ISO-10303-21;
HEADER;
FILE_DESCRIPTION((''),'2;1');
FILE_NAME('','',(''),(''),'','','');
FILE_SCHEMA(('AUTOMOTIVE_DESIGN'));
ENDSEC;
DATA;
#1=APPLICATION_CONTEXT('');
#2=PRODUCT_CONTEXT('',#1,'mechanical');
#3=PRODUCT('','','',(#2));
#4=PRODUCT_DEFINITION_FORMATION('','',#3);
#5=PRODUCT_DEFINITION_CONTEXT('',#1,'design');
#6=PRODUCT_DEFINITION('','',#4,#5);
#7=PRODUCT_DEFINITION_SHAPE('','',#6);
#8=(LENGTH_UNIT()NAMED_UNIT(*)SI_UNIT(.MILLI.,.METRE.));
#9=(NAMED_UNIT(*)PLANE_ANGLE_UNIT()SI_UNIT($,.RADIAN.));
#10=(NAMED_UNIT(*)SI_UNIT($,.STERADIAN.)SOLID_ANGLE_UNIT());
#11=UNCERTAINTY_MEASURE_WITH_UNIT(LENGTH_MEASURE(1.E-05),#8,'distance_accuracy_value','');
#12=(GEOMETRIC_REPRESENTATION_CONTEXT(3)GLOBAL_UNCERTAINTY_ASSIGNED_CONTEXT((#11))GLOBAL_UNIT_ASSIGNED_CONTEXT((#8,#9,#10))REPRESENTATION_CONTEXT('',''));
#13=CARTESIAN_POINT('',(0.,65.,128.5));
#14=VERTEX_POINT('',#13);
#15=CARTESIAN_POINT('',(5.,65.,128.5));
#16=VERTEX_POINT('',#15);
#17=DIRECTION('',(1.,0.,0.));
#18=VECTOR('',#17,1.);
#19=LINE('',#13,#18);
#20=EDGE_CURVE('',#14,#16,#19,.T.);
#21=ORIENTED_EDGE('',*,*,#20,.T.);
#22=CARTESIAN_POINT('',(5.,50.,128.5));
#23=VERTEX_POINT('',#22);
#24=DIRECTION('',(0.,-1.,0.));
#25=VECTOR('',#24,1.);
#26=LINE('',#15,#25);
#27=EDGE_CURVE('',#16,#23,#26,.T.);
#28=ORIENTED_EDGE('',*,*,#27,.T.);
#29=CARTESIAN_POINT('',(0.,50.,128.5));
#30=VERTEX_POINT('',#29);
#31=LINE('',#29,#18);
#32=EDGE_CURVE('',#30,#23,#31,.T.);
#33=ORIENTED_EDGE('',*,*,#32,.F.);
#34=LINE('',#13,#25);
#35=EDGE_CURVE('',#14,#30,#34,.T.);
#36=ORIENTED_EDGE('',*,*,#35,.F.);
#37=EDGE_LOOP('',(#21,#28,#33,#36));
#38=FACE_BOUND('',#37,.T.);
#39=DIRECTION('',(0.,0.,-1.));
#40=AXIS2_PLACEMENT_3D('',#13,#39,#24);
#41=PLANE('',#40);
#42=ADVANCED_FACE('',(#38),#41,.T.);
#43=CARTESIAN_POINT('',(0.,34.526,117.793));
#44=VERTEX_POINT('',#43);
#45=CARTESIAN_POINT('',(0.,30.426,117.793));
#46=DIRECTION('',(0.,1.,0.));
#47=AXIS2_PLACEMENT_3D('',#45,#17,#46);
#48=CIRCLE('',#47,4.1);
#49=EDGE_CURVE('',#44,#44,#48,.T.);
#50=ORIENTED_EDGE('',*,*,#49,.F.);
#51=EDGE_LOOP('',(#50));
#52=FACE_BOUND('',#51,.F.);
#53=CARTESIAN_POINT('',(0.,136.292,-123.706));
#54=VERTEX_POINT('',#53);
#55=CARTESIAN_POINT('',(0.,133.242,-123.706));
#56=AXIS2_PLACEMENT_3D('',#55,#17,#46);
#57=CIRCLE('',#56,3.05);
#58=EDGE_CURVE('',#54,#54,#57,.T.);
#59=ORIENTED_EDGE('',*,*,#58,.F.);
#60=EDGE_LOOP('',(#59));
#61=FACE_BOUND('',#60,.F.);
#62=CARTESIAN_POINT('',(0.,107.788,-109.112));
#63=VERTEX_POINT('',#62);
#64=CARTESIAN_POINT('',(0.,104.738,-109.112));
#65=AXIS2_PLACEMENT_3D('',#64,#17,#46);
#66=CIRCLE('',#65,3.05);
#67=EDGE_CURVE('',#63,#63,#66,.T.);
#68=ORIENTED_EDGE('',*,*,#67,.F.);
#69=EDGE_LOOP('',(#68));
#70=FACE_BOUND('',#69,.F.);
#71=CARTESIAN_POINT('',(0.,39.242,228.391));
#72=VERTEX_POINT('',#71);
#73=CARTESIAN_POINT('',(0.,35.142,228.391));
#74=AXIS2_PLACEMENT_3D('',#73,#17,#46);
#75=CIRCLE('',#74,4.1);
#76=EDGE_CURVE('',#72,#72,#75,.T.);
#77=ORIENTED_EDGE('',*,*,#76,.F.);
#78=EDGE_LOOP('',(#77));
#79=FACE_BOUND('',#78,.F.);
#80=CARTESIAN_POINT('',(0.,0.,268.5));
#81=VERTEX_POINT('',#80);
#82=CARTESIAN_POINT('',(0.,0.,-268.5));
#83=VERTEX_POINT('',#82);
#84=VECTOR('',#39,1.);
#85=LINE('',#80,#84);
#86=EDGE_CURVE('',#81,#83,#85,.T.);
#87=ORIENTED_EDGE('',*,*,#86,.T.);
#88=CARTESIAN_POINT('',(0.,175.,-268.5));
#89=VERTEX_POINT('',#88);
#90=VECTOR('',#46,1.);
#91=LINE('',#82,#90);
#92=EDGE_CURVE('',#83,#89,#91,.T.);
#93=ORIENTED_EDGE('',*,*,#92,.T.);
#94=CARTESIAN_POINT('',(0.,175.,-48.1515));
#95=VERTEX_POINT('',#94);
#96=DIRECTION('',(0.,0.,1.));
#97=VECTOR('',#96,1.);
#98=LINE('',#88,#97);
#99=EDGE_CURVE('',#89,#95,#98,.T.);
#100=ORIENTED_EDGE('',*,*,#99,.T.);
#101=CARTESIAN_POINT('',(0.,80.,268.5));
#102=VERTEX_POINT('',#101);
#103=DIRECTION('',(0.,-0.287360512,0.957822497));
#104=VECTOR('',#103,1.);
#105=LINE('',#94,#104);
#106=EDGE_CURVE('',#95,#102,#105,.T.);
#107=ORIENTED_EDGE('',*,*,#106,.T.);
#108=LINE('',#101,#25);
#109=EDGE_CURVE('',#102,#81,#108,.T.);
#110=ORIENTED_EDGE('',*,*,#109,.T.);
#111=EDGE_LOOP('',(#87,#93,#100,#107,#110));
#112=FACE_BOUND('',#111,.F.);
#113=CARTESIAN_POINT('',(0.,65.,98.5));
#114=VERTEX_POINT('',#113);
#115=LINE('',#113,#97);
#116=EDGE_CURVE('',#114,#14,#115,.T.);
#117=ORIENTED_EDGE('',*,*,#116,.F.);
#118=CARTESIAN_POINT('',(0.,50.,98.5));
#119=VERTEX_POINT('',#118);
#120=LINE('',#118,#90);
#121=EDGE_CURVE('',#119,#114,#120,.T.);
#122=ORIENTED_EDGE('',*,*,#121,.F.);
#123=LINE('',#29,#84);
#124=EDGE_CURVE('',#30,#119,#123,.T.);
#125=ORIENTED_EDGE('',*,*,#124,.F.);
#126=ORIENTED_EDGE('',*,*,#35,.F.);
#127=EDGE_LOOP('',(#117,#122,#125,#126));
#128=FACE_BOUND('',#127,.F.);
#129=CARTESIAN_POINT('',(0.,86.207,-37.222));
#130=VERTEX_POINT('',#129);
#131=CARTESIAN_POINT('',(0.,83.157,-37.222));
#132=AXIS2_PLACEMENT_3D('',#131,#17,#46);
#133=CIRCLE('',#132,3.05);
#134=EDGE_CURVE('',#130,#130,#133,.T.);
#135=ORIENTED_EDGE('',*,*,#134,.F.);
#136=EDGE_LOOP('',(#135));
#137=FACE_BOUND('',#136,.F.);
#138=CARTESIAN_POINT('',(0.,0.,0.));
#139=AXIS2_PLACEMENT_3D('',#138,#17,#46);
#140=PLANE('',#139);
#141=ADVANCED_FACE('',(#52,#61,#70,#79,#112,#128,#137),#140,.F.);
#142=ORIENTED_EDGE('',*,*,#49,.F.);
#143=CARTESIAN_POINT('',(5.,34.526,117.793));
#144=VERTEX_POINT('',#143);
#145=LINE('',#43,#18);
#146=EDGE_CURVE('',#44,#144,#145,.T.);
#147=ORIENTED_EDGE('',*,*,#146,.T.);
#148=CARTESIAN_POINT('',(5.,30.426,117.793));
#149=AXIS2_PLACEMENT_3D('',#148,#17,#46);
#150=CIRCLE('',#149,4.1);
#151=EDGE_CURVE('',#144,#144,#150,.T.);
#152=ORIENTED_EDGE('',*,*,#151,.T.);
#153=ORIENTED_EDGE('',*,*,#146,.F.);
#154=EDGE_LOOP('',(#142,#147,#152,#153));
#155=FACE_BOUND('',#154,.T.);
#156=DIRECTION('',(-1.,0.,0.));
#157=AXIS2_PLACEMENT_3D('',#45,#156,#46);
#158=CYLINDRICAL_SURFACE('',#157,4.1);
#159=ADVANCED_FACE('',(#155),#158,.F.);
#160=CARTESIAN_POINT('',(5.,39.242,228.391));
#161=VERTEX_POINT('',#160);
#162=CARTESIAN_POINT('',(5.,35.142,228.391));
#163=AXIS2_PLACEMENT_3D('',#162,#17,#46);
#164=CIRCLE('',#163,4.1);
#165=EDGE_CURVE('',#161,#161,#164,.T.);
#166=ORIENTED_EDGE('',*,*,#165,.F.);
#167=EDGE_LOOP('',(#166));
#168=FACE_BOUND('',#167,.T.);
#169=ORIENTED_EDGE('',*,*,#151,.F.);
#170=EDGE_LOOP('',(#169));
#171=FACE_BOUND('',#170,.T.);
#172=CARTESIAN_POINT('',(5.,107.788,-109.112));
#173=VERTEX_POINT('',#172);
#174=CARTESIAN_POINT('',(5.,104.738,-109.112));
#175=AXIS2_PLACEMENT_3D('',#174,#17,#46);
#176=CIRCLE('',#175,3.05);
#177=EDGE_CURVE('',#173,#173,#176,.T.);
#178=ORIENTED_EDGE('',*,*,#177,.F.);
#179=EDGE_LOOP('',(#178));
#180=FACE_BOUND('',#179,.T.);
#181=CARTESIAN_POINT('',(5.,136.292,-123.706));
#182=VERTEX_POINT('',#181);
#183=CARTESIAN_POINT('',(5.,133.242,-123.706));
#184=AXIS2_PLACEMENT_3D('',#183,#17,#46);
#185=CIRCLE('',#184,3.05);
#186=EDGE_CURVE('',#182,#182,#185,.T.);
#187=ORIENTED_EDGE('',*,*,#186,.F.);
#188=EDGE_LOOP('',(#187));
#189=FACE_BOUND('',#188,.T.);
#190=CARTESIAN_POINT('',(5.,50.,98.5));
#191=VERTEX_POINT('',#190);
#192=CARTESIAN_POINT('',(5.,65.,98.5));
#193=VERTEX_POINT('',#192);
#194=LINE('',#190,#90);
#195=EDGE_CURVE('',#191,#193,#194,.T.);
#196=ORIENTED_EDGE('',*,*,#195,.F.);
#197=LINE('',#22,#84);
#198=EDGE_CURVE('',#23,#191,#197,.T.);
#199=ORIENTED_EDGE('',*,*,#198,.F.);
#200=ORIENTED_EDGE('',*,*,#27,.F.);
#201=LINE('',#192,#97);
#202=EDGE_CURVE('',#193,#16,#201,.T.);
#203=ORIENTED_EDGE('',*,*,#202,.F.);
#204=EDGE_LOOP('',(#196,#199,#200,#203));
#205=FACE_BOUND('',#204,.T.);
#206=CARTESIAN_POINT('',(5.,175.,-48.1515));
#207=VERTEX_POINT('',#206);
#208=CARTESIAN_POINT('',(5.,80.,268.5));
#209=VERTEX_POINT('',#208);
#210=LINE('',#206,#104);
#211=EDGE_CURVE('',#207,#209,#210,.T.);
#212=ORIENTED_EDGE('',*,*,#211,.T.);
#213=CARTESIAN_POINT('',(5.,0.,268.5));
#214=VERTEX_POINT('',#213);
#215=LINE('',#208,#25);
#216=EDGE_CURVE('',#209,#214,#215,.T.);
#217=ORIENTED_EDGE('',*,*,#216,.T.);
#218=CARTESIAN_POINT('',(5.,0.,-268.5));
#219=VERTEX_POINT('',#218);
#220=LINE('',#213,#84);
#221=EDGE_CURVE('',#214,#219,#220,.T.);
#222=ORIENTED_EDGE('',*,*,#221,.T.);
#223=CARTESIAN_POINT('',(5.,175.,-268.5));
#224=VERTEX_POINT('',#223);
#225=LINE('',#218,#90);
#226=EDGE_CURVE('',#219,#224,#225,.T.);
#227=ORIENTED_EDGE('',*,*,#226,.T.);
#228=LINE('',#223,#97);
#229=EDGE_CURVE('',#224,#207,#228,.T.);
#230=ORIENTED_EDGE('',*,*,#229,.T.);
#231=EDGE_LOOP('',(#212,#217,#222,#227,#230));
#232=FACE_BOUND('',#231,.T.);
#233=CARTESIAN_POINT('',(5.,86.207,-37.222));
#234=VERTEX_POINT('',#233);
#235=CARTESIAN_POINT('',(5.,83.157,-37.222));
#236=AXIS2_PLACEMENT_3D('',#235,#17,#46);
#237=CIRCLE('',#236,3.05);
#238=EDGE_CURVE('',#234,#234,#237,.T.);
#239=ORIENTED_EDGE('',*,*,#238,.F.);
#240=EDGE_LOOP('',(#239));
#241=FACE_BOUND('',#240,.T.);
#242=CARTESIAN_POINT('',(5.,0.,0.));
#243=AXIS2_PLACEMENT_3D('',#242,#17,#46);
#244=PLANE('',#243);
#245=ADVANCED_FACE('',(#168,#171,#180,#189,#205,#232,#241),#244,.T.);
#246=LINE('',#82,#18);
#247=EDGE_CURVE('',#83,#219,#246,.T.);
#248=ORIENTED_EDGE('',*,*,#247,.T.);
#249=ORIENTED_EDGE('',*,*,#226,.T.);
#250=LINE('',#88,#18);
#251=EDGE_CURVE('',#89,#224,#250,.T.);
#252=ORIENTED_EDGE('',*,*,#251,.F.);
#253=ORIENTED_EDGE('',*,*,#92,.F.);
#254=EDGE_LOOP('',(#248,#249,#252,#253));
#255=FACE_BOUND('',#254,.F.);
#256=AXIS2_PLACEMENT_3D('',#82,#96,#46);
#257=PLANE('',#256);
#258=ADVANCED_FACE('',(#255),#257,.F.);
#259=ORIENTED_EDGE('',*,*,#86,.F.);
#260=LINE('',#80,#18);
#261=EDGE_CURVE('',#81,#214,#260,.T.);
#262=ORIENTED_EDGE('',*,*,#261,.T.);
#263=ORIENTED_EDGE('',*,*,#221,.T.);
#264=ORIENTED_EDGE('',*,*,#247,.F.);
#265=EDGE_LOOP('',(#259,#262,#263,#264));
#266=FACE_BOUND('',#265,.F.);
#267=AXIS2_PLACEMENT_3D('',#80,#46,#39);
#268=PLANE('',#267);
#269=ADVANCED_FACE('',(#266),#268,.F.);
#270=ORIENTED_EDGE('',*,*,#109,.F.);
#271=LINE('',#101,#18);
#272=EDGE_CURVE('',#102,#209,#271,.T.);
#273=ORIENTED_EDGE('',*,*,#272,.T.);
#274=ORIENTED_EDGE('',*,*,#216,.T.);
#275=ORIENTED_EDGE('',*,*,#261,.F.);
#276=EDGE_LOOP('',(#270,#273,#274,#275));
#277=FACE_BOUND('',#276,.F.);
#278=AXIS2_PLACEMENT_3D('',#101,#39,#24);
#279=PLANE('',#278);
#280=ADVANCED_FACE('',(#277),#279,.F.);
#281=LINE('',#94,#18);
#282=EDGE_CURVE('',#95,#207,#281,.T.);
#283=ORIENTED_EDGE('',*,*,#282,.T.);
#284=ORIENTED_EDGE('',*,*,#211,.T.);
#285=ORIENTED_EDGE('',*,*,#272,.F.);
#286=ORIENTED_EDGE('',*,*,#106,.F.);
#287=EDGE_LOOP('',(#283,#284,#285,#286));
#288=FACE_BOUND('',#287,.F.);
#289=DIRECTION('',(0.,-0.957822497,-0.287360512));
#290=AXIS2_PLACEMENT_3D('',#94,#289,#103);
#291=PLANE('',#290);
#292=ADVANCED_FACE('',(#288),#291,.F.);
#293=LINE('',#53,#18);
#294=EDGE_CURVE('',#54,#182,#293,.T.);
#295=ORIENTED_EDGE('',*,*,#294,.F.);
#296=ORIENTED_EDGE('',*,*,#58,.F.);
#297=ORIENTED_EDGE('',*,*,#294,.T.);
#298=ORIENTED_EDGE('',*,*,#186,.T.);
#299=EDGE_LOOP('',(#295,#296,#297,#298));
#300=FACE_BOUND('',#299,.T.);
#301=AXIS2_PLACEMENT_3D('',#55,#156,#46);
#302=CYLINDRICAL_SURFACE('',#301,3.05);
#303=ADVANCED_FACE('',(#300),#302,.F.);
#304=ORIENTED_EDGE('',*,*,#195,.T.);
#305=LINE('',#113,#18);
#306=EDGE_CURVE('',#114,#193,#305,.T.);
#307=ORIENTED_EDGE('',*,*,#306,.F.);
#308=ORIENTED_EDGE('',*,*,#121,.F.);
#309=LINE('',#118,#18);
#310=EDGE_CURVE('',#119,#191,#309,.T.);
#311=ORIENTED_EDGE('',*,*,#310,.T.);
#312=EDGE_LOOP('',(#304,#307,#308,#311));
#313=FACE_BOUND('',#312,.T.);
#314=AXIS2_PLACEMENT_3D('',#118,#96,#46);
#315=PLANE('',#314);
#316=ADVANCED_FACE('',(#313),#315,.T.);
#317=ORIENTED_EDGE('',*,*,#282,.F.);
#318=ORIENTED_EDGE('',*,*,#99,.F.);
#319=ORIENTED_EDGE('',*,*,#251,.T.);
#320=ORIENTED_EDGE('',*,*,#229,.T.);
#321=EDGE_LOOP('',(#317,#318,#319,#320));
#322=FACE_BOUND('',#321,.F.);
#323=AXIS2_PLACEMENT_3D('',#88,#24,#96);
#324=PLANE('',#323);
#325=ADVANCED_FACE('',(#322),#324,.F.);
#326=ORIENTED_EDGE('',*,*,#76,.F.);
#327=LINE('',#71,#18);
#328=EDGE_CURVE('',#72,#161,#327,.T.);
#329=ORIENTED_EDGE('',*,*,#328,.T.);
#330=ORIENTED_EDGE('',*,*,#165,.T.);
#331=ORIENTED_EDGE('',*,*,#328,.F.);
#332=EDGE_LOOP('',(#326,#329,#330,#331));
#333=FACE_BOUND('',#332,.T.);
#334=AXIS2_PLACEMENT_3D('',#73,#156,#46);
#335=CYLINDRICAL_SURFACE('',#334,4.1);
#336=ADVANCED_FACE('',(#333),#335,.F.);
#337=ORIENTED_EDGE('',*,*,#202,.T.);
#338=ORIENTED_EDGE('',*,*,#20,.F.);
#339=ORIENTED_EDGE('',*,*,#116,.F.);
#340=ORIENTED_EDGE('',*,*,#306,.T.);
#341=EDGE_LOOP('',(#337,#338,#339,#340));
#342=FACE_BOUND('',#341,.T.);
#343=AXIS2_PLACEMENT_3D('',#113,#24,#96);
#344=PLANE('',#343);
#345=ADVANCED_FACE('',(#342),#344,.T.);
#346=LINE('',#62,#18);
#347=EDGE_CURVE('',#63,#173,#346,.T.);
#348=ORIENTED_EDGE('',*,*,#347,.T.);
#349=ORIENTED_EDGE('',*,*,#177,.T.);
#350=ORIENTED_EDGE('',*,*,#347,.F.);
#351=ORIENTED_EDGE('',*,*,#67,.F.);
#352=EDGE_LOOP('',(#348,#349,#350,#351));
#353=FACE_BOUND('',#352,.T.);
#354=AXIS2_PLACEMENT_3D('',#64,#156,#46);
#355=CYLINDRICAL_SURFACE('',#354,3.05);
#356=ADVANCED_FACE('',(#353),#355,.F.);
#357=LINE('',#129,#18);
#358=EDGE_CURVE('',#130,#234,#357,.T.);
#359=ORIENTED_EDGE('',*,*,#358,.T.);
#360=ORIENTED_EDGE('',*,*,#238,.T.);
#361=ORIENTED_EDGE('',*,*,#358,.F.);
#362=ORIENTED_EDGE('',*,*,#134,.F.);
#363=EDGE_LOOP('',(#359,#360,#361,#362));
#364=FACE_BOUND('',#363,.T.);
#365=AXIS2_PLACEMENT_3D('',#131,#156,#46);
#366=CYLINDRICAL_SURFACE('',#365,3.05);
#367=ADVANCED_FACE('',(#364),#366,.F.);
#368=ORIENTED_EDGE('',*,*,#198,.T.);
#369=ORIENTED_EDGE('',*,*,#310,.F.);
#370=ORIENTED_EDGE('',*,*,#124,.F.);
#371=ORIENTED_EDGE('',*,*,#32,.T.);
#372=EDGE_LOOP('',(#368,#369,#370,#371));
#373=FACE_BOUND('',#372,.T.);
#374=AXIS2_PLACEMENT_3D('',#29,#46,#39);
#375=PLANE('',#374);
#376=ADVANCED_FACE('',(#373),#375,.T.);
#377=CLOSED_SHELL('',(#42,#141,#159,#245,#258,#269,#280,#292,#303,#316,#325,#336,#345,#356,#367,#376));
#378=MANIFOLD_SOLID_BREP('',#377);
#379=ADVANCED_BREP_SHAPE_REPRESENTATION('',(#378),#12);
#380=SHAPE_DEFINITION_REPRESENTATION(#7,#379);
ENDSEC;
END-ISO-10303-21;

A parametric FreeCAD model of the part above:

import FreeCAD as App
import Part
import Sketcher

V = App.Vector
Q = App.Units.Quantity


def add_polygon(sketch, points):
    """Adds a closed chain of lines whose ends are joined by coincident constraints."""
    first, n = sketch.GeometryCount, len(points)
    for a, b in zip(points, points[1:] + points[:1]):
        sketch.addGeometry(Part.LineSegment(App.Vector(*a, 0), App.Vector(*b, 0)), False)
    for i in range(n):
        sketch.addConstraint(Sketcher.Constraint("Coincident", first + i, 2, first + (i + 1) % n, 1))

doc = App.newDocument("Part")
body = doc.addObject("PartDesign::Body", "Body")

# Sketch on YZ plane
sketch1 = doc.addObject("Sketcher::SketchObject", "Sketch")
body.addObject(sketch1)
sketch1.AttachmentSupport = (doc.YZ_Plane, [""])
sketch1.MapMode = "FlatFace"
add_polygon(sketch1, [(80, 268.5), (0, 268.5), (0, -268.5), (175, -268.5), (175, -48.2)])  # lines 0-4
sketch1.addGeometry(Part.Circle(V(83.2, -37.2, 0), V(0, 0, 1), 3), False)  # 5
sketch1.addGeometry(Part.Circle(V(104.7, -109.1, 0), V(0, 0, 1), 3), False)  # 6
sketch1.addGeometry(Part.Circle(V(133.2, -123.7, 0), V(0, 0, 1), 3), False)  # 7
sketch1.addGeometry(Part.Circle(V(30.4, 117.8, 0), V(0, 0, 1), 4.1), False)  # 8
add_polygon(sketch1, [(50, 128.5), (65, 128.5), (65, 98.5), (50, 98.5)])  # lines 9-12
sketch1.addGeometry(Part.Circle(V(35.1, 228.4, 0), V(0, 0, 1), 4.1), False)  # 13
sketch1.addConstraint(Sketcher.Constraint("Horizontal", 0))
sketch1.addConstraint(Sketcher.Constraint("Vertical", 1))
sketch1.addConstraint(Sketcher.Constraint("Horizontal", 2))
sketch1.addConstraint(Sketcher.Constraint("Vertical", 3))
sketch1.addConstraint(Sketcher.Constraint("Horizontal", 9))
sketch1.addConstraint(Sketcher.Constraint("Vertical", 10))
sketch1.addConstraint(Sketcher.Constraint("Horizontal", 11))
sketch1.addConstraint(Sketcher.Constraint("Vertical", 12))
sketch1.addConstraint(Sketcher.Constraint("Equal", 5, 6))
sketch1.addConstraint(Sketcher.Constraint("Equal", 6, 7))
sketch1.addConstraint(Sketcher.Constraint("Equal", 8, 13))
sketch1.addConstraint(Sketcher.Constraint("Symmetric", 0, 2, 1, 2, -1, 1))
sketch1.addConstraint(Sketcher.Constraint("Diameter", 5, 6.1))
sketch1.addConstraint(Sketcher.Constraint("Diameter", 8, 8.2))
sketch1.addConstraint(Sketcher.Constraint("DistanceX", 0, 2, 0, 1, 80.0))
sketch1.addConstraint(Sketcher.Constraint("DistanceX", 2, 1, 2, 2, 175.0))
sketch1.addConstraint(Sketcher.Constraint("DistanceX", 9, 1, 9, 2, 15.0))
sketch1.addConstraint(Sketcher.Constraint("DistanceY", 1, 2, 1, 1, 537.0))
sketch1.addConstraint(Sketcher.Constraint("DistanceY", 10, 2, 10, 1, 30.0))
sketch1.addConstraint(Sketcher.Constraint("DistanceX", -1, 1, 11, 2, 50.0))
sketch1.addConstraint(Sketcher.Constraint("DistanceY", 9, 2, 4, 2, 140.0))
sketch1.addConstraint(Sketcher.Constraint("DistanceX", -1, 1, 5, 3, 83.157))
sketch1.addConstraint(Sketcher.Constraint("DistanceX", -1, 1, 6, 3, 104.738))
sketch1.addConstraint(Sketcher.Constraint("DistanceX", -1, 1, 7, 3, 133.242))
sketch1.addConstraint(Sketcher.Constraint("DistanceX", -1, 1, 8, 3, 30.426))
sketch1.addConstraint(Sketcher.Constraint("DistanceX", -1, 1, 13, 3, 35.142))
sketch1.addConstraint(Sketcher.Constraint("Angle", 4, Q("106.7 deg")))
sketch1.addConstraint(Sketcher.Constraint("DistanceY", 13, 3, 0, 2, 40.109))
sketch1.addConstraint(Sketcher.Constraint("DistanceY", 8, 3, 0, 2, 150.707))
sketch1.addConstraint(Sketcher.Constraint("DistanceY", 5, 3, 0, 2, 305.722))
sketch1.addConstraint(Sketcher.Constraint("DistanceY", 6, 3, 0, 2, 377.612))
sketch1.addConstraint(Sketcher.Constraint("DistanceY", 7, 3, 0, 2, 392.206))
pad1 = doc.addObject("PartDesign::Pad", "Pad")
body.addObject(pad1)
pad1.Profile = sketch1
pad1.Length = 5

doc.recompute()
